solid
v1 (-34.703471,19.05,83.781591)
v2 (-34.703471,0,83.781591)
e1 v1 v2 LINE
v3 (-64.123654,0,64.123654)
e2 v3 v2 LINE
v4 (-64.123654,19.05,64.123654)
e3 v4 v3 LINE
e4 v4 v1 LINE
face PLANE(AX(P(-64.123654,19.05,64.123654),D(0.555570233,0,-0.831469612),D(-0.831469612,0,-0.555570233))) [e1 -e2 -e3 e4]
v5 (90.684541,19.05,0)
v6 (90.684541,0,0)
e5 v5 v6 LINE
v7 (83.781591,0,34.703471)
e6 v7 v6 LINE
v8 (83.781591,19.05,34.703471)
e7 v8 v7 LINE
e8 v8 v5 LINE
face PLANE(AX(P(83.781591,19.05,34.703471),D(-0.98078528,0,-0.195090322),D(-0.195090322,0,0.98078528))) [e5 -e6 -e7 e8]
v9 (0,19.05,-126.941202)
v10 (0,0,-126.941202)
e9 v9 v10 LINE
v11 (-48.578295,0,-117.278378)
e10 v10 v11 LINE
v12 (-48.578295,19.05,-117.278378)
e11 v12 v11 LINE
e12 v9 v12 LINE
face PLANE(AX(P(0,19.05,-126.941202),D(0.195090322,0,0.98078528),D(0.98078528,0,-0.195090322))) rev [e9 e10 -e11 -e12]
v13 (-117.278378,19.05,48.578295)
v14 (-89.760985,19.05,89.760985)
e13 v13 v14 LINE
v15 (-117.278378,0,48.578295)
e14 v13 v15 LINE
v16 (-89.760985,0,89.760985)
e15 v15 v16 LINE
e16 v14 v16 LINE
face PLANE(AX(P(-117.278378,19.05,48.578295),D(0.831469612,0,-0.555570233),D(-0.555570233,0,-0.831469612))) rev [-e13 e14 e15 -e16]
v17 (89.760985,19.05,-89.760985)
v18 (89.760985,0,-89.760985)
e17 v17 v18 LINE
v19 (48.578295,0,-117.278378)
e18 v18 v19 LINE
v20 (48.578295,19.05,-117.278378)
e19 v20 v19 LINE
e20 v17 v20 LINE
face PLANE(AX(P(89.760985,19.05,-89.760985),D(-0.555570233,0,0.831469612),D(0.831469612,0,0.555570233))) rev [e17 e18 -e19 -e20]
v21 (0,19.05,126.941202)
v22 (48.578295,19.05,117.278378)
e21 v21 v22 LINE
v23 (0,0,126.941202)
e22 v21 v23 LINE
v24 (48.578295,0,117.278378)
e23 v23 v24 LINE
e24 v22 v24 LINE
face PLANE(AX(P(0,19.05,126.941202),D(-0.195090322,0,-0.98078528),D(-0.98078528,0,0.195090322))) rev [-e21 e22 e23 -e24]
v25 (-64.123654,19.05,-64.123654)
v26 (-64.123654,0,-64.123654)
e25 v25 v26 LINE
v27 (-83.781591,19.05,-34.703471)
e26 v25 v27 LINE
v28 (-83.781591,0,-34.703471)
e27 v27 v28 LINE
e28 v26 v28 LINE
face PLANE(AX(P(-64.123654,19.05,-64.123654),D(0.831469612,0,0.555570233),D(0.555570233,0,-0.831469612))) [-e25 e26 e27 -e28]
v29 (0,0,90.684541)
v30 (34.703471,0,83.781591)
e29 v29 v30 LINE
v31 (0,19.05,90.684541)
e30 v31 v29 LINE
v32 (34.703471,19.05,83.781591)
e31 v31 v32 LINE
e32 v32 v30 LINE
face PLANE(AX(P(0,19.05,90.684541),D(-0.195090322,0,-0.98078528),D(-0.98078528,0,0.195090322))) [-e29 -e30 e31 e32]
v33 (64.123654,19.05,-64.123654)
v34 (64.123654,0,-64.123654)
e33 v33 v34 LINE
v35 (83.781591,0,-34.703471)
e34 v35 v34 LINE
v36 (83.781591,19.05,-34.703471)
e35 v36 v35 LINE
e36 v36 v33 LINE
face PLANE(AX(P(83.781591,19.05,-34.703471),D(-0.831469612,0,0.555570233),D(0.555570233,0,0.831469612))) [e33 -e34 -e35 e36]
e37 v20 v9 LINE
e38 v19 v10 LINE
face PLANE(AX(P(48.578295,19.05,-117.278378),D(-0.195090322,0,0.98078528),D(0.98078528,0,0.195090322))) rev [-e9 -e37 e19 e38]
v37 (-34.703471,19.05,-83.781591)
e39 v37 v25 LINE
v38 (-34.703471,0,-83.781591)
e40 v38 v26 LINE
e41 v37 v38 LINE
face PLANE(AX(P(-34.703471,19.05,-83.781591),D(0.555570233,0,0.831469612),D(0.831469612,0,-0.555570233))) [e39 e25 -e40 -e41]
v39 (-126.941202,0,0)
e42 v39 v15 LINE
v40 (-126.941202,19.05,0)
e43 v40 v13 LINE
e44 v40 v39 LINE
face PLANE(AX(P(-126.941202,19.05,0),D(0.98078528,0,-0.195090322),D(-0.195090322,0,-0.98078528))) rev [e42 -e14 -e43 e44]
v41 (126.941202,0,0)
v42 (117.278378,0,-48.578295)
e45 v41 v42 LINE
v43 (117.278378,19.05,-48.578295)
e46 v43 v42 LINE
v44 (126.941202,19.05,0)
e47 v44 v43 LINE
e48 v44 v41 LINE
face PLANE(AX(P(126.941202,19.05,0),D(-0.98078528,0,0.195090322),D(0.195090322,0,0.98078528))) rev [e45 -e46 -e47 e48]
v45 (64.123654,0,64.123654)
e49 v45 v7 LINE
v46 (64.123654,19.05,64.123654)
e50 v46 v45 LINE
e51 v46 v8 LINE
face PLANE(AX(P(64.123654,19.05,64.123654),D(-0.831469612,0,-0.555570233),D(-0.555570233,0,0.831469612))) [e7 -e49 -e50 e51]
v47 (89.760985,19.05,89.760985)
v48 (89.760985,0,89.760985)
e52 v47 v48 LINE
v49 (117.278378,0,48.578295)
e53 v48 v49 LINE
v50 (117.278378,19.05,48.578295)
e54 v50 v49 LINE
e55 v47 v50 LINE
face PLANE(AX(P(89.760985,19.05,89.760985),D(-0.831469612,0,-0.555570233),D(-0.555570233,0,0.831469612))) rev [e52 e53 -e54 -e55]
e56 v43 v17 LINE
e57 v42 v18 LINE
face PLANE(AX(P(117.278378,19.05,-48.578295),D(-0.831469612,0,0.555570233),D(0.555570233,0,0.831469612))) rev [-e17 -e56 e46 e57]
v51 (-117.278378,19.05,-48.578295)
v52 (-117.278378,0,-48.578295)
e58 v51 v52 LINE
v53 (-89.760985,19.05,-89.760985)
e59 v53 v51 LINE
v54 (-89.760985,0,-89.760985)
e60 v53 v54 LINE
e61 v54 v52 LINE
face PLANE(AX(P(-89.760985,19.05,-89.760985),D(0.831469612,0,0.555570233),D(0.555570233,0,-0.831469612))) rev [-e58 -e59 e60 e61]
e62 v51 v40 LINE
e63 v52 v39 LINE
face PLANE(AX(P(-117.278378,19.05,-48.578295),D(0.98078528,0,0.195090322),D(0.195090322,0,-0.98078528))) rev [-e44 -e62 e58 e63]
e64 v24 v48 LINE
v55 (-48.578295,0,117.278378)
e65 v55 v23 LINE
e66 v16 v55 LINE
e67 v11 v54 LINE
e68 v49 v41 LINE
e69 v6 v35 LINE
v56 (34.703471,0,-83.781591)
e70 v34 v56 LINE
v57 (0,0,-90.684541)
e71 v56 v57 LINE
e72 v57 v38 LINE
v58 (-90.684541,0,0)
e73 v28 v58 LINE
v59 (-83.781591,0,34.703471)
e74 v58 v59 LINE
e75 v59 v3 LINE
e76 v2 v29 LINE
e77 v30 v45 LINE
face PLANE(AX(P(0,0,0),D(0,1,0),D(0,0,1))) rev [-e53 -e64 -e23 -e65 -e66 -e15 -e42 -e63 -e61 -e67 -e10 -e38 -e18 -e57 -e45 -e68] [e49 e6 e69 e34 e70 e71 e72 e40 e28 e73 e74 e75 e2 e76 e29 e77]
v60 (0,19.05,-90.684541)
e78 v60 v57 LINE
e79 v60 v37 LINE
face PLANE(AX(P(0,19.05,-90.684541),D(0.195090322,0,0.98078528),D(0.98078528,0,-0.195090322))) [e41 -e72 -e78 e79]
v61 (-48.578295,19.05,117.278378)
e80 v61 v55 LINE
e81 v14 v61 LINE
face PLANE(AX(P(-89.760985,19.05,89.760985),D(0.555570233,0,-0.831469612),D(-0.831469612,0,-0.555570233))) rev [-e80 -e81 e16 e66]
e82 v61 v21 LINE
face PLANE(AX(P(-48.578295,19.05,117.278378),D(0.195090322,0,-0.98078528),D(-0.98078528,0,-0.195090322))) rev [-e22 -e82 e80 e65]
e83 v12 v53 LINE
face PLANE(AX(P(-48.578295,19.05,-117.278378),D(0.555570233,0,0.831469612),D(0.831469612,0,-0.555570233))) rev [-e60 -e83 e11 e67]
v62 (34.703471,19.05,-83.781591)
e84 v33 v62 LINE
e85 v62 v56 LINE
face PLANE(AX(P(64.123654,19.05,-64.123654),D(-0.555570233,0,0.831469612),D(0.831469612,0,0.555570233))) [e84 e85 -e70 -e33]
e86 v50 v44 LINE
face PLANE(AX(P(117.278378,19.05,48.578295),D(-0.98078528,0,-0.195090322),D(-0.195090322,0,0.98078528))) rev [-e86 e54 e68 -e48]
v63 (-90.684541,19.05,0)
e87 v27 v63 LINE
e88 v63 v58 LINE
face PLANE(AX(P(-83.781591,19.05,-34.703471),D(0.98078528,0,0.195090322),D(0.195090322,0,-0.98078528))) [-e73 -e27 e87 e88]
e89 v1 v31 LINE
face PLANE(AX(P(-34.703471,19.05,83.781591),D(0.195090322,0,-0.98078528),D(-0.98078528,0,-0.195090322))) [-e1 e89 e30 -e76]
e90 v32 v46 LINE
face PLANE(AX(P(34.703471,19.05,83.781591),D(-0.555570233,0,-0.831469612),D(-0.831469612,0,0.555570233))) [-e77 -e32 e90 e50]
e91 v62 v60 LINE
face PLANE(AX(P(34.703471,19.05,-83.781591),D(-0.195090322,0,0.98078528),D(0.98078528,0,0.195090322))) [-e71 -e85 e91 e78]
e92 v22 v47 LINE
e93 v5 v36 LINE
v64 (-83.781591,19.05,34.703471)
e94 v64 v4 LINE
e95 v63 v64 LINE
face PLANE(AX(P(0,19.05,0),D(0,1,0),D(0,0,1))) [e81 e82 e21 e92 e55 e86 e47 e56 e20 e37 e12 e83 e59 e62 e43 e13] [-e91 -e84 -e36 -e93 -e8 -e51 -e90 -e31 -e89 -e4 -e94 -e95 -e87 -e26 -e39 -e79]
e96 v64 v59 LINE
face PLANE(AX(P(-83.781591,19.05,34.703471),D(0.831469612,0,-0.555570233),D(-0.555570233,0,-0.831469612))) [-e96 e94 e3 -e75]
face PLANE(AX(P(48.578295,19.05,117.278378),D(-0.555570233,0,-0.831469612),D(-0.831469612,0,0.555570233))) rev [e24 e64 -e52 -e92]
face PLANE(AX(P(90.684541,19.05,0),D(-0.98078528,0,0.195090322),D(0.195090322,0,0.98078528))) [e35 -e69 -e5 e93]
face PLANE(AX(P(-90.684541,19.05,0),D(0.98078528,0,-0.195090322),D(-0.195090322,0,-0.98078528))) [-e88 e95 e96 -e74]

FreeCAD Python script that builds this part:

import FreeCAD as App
import Part
import Sketcher
from FreeCAD import Vector
Q = App.Units.Quantity

doc = App.newDocument("Part")
body = doc.addObject("PartDesign::Body", "Body")

sketch1 = body.newObject("Sketcher::SketchObject", "Sketch")
sketch1.AttachmentSupport = (doc.getObject("XZ_Plane"), [""])
sketch1.MapMode = "FlatFace"
sketch1.addGeometry([
    Part.LineSegment(Vector(126.941202, 0, 0), Vector(117.278378, -48.578295, 0)),
    Part.LineSegment(Vector(117.278378, -48.578295, 0), Vector(89.760985, -89.760985, 0)),
    Part.LineSegment(Vector(89.760985, -89.760985, 0), Vector(48.578295, -117.278378, 0)),
    Part.LineSegment(Vector(48.578295, -117.278378, 0), Vector(0, -126.941202, 0)),
    Part.LineSegment(Vector(0, -126.941202, 0), Vector(-48.578295, -117.278378, 0)),
    Part.LineSegment(Vector(-48.578295, -117.278378, 0), Vector(-89.760985, -89.760985, 0)),
    Part.LineSegment(Vector(-89.760985, -89.760985, 0), Vector(-117.278378, -48.578295, 0)),
    Part.LineSegment(Vector(-117.278378, -48.578295, 0), Vector(-126.941202, 0, 0)),
    Part.LineSegment(Vector(-126.941202, 0, 0), Vector(-117.278378, 48.578295, 0)),
    Part.LineSegment(Vector(-117.278378, 48.578295, 0), Vector(-89.760985, 89.760985, 0)),
    Part.LineSegment(Vector(-89.760985, 89.760985, 0), Vector(-48.578295, 117.278378, 0)),
    Part.LineSegment(Vector(-48.578295, 117.278378, 0), Vector(0, 126.941202, 0)),
    Part.LineSegment(Vector(0, 126.941202, 0), Vector(48.578295, 117.278378, 0)),
    Part.LineSegment(Vector(48.578295, 117.278378, 0), Vector(89.760985, 89.760985, 0)),
    Part.LineSegment(Vector(89.760985, 89.760985, 0), Vector(117.278378, 48.578295, 0)),
    Part.LineSegment(Vector(117.278378, 48.578295, 0), Vector(126.941202, 0, 0)),
    Part.LineSegment(Vector(83.781591, -34.703471, 0), Vector(90.684541, 0, 0)),
    Part.LineSegment(Vector(90.684541, 0, 0), Vector(83.781591, 34.703471, 0)),
    Part.LineSegment(Vector(83.781591, 34.703471, 0), Vector(64.123654, 64.123654, 0)),
    Part.LineSegment(Vector(64.123654, 64.123654, 0), Vector(34.703471, 83.781591, 0)),
    Part.LineSegment(Vector(34.703471, 83.781591, 0), Vector(0, 90.684541, 0)),
    Part.LineSegment(Vector(0, 90.684541, 0), Vector(-34.703471, 83.781591, 0)),
    Part.LineSegment(Vector(-34.703471, 83.781591, 0), Vector(-64.123654, 64.123654, 0)),
    Part.LineSegment(Vector(-64.123654, 64.123654, 0), Vector(-83.781591, 34.703471, 0)),
    Part.LineSegment(Vector(-83.781591, 34.703471, 0), Vector(-90.684541, 0, 0)),
    Part.LineSegment(Vector(-90.684541, 0, 0), Vector(-83.781591, -34.703471, 0)),
    Part.LineSegment(Vector(-83.781591, -34.703471, 0), Vector(-64.123654, -64.123654, 0)),
    Part.LineSegment(Vector(-64.123654, -64.123654, 0), Vector(-34.703471, -83.781591, 0)),
    Part.LineSegment(Vector(-34.703471, -83.781591, 0), Vector(0, -90.684541, 0)),
    Part.LineSegment(Vector(0, -90.684541, 0), Vector(34.703471, -83.781591, 0)),
    Part.LineSegment(Vector(34.703471, -83.781591, 0), Vector(64.123654, -64.123654, 0)),
    Part.LineSegment(Vector(64.123654, -64.123654, 0), Vector(83.781591, -34.703471, 0)),
], False)
sketch1.addConstraint([
    Sketcher.Constraint("Coincident", 0, 2, 1, 1),
    Sketcher.Constraint("Coincident", 1, 2, 2, 1),
    Sketcher.Constraint("Coincident", 2, 2, 3, 1),
    Sketcher.Constraint("Coincident", 3, 2, 4, 1),
    Sketcher.Constraint("Coincident", 4, 2, 5, 1),
    Sketcher.Constraint("Coincident", 5, 2, 6, 1),
    Sketcher.Constraint("Coincident", 6, 2, 7, 1),
    Sketcher.Constraint("Coincident", 7, 2, 8, 1),
    Sketcher.Constraint("Coincident", 8, 2, 9, 1),
    Sketcher.Constraint("Coincident", 9, 2, 10, 1),
    Sketcher.Constraint("Coincident", 10, 2, 11, 1),
    Sketcher.Constraint("Coincident", 11, 2, 12, 1),
    Sketcher.Constraint("Coincident", 12, 2, 13, 1),
    Sketcher.Constraint("Coincident", 13, 2, 14, 1),
    Sketcher.Constraint("Coincident", 14, 2, 15, 1),
    Sketcher.Constraint("Coincident", 15, 2, 0, 1),
    Sketcher.Constraint("Coincident", 16, 2, 17, 1),
    Sketcher.Constraint("Coincident", 17, 2, 18, 1),
    Sketcher.Constraint("Coincident", 18, 2, 19, 1),
    Sketcher.Constraint("Coincident", 19, 2, 20, 1),
    Sketcher.Constraint("Coincident", 20, 2, 21, 1),
    Sketcher.Constraint("Coincident", 21, 2, 22, 1),
    Sketcher.Constraint("Coincident", 22, 2, 23, 1),
    Sketcher.Constraint("Coincident", 23, 2, 24, 1),
    Sketcher.Constraint("Coincident", 24, 2, 25, 1),
    Sketcher.Constraint("Coincident", 25, 2, 26, 1),
    Sketcher.Constraint("Coincident", 26, 2, 27, 1),
    Sketcher.Constraint("Coincident", 27, 2, 28, 1),
    Sketcher.Constraint("Coincident", 28, 2, 29, 1),
    Sketcher.Constraint("Coincident", 29, 2, 30, 1),
    Sketcher.Constraint("Coincident", 30, 2, 31, 1),
    Sketcher.Constraint("Coincident", 31, 2, 16, 1),
    Sketcher.Constraint("Symmetric", 0, 2, 8, 2, -1, 1),
    Sketcher.Constraint("Symmetric", 1, 2, 9, 2, -1, 1),
    Sketcher.Constraint("Symmetric", 2, 2, 10, 2, -1, 1),
    Sketcher.Constraint("Symmetric", 3, 2, 11, 2, -1, 1),
    Sketcher.Constraint("Symmetric", 4, 2, 12, 2, -1, 1),
    Sketcher.Constraint("Symmetric", 5, 2, 13, 2, -1, 1),
    Sketcher.Constraint("Symmetric", 6, 2, 14, 2, -1, 1),
    Sketcher.Constraint("Symmetric", 7, 2, 15, 2, -1, 1),
    Sketcher.Constraint("Symmetric", 16, 2, 24, 2, -1, 1),
    Sketcher.Constraint("Symmetric", 17, 2, 25, 2, -1, 1),
    Sketcher.Constraint("Symmetric", 18, 2, 26, 2, -1, 1),
    Sketcher.Constraint("Symmetric", 19, 2, 27, 2, -1, 1),
    Sketcher.Constraint("Symmetric", 20, 2, 28, 2, -1, 1),
    Sketcher.Constraint("Symmetric", 21, 2, 29, 2, -1, 1),
    Sketcher.Constraint("Symmetric", 22, 2, 30, 2, -1, 1),
    Sketcher.Constraint("Symmetric", 23, 2, 31, 2, -1, 1),
    Sketcher.Constraint("Symmetric", 2, 2, 4, 2, -2),
    Sketcher.Constraint("Symmetric", 1, 2, 5, 2, -2),
    Sketcher.Constraint("Symmetric", 0, 2, 6, 2, -2),
    Sketcher.Constraint("Symmetric", 19, 2, 21, 2, -2),
    Sketcher.Constraint("Symmetric", 18, 2, 22, 2, -2),
    Sketcher.Constraint("Symmetric", 17, 2, 23, 2, -2),
    Sketcher.Constraint("PointOnObject", 3, 2, -2),
    Sketcher.Constraint("PointOnObject", 7, 2, -1),
    Sketcher.Constraint("PointOnObject", 16, 2, -1),
    Sketcher.Constraint("PointOnObject", 20, 2, -2),
    Sketcher.Constraint("Perpendicular", 0, 4),
    Sketcher.Constraint("Perpendicular", 1, 5),
    Sketcher.Constraint("Perpendicular", 12, 16),
    Sketcher.Constraint("Parallel", 14, 18),
    Sketcher.Constraint("Parallel", 13, 19),
    Sketcher.Constraint("Perpendicular", 16, 20),
    Sketcher.Constraint("Equal", 0, 1),
    Sketcher.Constraint("Equal", 1, 2),
    Sketcher.Constraint("Equal", 2, 3),
    Sketcher.Constraint("Equal", 17, 18),
    Sketcher.Constraint("Equal", 18, 19),
    Sketcher.Constraint("Equal", 19, 20),
    Sketcher.Constraint("Distance", 0, Q("1.95 in")),
    Sketcher.Constraint("Angle", 0, Q("-101.25 deg")),
    Sketcher.Constraint("Angle", 1, Q("-123.75 deg")),
    Sketcher.Constraint("DistanceX", -1, 1, 16, 2, Q("90.684541 mm")),
])
pad1 = body.newObject("PartDesign::Pad", "Pad")
pad1.Profile = sketch1
pad1.Length = Q("0.75 in")
pad1.Reversed = True

doc.recompute()
